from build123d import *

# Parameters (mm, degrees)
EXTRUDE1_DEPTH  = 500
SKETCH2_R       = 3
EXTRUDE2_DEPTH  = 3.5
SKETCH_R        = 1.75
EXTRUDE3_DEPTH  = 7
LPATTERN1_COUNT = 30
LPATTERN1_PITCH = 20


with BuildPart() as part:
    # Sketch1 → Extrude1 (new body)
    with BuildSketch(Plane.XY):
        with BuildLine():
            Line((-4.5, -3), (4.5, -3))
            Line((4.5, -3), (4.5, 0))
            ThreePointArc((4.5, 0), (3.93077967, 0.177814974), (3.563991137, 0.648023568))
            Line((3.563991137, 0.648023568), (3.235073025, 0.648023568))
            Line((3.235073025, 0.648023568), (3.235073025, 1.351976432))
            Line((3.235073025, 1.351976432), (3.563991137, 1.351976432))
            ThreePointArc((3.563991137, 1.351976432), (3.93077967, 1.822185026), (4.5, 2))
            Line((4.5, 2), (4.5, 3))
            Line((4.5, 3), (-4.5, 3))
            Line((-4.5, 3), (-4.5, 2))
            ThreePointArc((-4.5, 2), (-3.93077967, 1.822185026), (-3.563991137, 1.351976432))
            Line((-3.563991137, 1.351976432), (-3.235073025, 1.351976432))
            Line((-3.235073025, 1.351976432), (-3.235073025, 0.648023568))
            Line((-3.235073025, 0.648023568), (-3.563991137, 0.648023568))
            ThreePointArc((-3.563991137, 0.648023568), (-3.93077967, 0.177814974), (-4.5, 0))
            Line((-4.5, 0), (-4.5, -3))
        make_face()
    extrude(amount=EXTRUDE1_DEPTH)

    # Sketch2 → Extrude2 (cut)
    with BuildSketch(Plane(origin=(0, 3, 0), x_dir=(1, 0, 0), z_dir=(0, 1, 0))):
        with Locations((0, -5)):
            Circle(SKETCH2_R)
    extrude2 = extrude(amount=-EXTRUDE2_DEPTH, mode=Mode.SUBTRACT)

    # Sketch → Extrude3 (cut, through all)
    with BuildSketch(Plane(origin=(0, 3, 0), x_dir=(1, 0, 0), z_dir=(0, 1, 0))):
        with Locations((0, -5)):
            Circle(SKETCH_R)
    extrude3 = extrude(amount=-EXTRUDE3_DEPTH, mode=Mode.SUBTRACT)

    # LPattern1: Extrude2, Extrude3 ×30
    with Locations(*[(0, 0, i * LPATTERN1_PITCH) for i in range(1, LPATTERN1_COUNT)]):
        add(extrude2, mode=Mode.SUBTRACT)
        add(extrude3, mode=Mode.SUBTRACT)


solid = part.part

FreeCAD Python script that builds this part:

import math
import FreeCAD as App
import Part
import Sketcher

doc = App.newDocument("Part")
body = doc.addObject("PartDesign::Body", "Body")

# Sketch on XY plane
sketch1 = body.newObject("Sketcher::SketchObject", "Sketch")
sketch1.AttachmentSupport = (doc.getObject("XY_Plane"), [""])
sketch1.MapMode = "FlatFace"
sketch1.addGeometry(Part.LineSegment(App.Vector(-4.5, -3, 0), App.Vector(4.5, -3, 0)), False)
sketch1.addGeometry(Part.LineSegment(App.Vector(4.5, -3, 0), App.Vector(4.5, 0, 0)), False)
sketch1.addGeometry(Part.ArcOfCircle(Part.Circle(App.Vector(4.5, 1, 0), App.Vector(0, 0, 1), 1), math.radians(-159), math.radians(-90)), False)
sketch1.addGeometry(Part.LineSegment(App.Vector(3.56, 0.65, 0), App.Vector(3.24, 0.65, 0)), False)
sketch1.addGeometry(Part.LineSegment(App.Vector(3.24, 0.65, 0), App.Vector(3.24, 1.35, 0)), False)
sketch1.addGeometry(Part.LineSegment(App.Vector(3.24, 1.35, 0), App.Vector(3.56, 1.35, 0)), False)
sketch1.addGeometry(Part.ArcOfCircle(Part.Circle(App.Vector(4.5, 1, 0), App.Vector(0, 0, 1), 1), math.radians(90), math.radians(159)), False)
sketch1.addGeometry(Part.LineSegment(App.Vector(4.5, 2, 0), App.Vector(4.5, 3, 0)), False)
sketch1.addGeometry(Part.LineSegment(App.Vector(4.5, 3, 0), App.Vector(-4.5, 3, 0)), False)
sketch1.addGeometry(Part.LineSegment(App.Vector(-4.5, 3, 0), App.Vector(-4.5, 2, 0)), False)
sketch1.addGeometry(Part.ArcOfCircle(Part.Circle(App.Vector(-4.5, 1, 0), App.Vector(0, 0, 1), 1), math.radians(21), math.radians(90)), False)
sketch1.addGeometry(Part.LineSegment(App.Vector(-3.56, 1.35, 0), App.Vector(-3.24, 1.35, 0)), False)
sketch1.addGeometry(Part.LineSegment(App.Vector(-3.24, 1.35, 0), App.Vector(-3.24, 0.65, 0)), False)
sketch1.addGeometry(Part.LineSegment(App.Vector(-3.24, 0.65, 0), App.Vector(-3.56, 0.65, 0)), False)
sketch1.addGeometry(Part.ArcOfCircle(Part.Circle(App.Vector(-4.5, 1, 0), App.Vector(0, 0, 1), 1), math.radians(-90), math.radians(-21)), False)
sketch1.addGeometry(Part.LineSegment(App.Vector(-4.5, 0, 0), App.Vector(-4.5, -3, 0)), False)
sketch1.addConstraint(Sketcher.Constraint("Coincident", 0, 2, 1, 1))
sketch1.addConstraint(Sketcher.Constraint("Coincident", 1, 2, 2, 2))
sketch1.addConstraint(Sketcher.Constraint("Coincident", 2, 1, 3, 1))
sketch1.addConstraint(Sketcher.Constraint("Coincident", 3, 2, 4, 1))
sketch1.addConstraint(Sketcher.Constraint("Coincident", 4, 2, 5, 1))
sketch1.addConstraint(Sketcher.Constraint("Coincident", 5, 2, 6, 2))
sketch1.addConstraint(Sketcher.Constraint("Coincident", 6, 1, 7, 1))
sketch1.addConstraint(Sketcher.Constraint("Coincident", 7, 2, 8, 1))
sketch1.addConstraint(Sketcher.Constraint("Coincident", 8, 2, 9, 1))
sketch1.addConstraint(Sketcher.Constraint("Coincident", 9, 2, 10, 2))
sketch1.addConstraint(Sketcher.Constraint("Coincident", 10, 1, 11, 1))
sketch1.addConstraint(Sketcher.Constraint("Coincident", 11, 2, 12, 1))
sketch1.addConstraint(Sketcher.Constraint("Coincident", 12, 2, 13, 1))
sketch1.addConstraint(Sketcher.Constraint("Coincident", 13, 2, 14, 2))
sketch1.addConstraint(Sketcher.Constraint("Coincident", 14, 1, 15, 1))
sketch1.addConstraint(Sketcher.Constraint("Coincident", 15, 2, 0, 1))
sketch1.addConstraint(Sketcher.Constraint("Horizontal", 0))
sketch1.addConstraint(Sketcher.Constraint("Vertical", 1))
sketch1.addConstraint(Sketcher.Constraint("Horizontal", 3))
sketch1.addConstraint(Sketcher.Constraint("Vertical", 4))
sketch1.addConstraint(Sketcher.Constraint("Horizontal", 5))
sketch1.addConstraint(Sketcher.Constraint("Vertical", 7))
sketch1.addConstraint(Sketcher.Constraint("Horizontal", 8))
sketch1.addConstraint(Sketcher.Constraint("Vertical", 9))
sketch1.addConstraint(Sketcher.Constraint("Horizontal", 11))
sketch1.addConstraint(Sketcher.Constraint("Vertical", 12))
sketch1.addConstraint(Sketcher.Constraint("Horizontal", 13))
sketch1.addConstraint(Sketcher.Constraint("Vertical", 15))
sketch1.addConstraint(Sketcher.Constraint("Coincident", 6, 3, 2, 3))
sketch1.addConstraint(Sketcher.Constraint("Coincident", 14, 3, 10, 3))
sketch1.addConstraint(Sketcher.Constraint("Equal", 2, 6))
sketch1.addConstraint(Sketcher.Constraint("Equal", 6, 10))
sketch1.addConstraint(Sketcher.Constraint("Equal", 10, 14))
sketch1.addConstraint(Sketcher.Constraint("Symmetric", 0, 2, 8, 2, -1, 1))
sketch1.addConstraint(Sketcher.Constraint("Symmetric", 1, 2, 14, 1, -1, 1))
sketch1.addConstraint(Sketcher.Constraint("Symmetric", 2, 3, 10, 3, -2))
sketch1.addConstraint(Sketcher.Constraint("Symmetric", 4, 2, 11, 2, -2))
sketch1.addConstraint(Sketcher.Constraint("Horizontal", 3, 2, 12, 2))
sketch1.addConstraint(Sketcher.Constraint("Vertical", 6, 3, 0, 2))
sketch1.addConstraint(Sketcher.Constraint("Vertical", 2, 1, 5, 2))
sketch1.addConstraint(Sketcher.Constraint("Vertical", 1, 2, 6, 1))
sketch1.addConstraint(Sketcher.Constraint("Radius", 2, 1.0))
sketch1.addConstraint(Sketcher.Constraint("DistanceX", 0, 1, 0, 2, 9.0))
sketch1.addConstraint(Sketcher.Constraint("DistanceY", 1, 1, 1, 2, 3.0))
sketch1.addConstraint(Sketcher.Constraint("DistanceX", 3, 2, 3, 1, 0.328918))
sketch1.addConstraint(Sketcher.Constraint("DistanceY", 4, 1, 4, 2, 0.703953))
pad1 = body.newObject("PartDesign::Pad", "Pad")
pad1.Profile = sketch1
pad1.Length = 500

# Sketch on XZ plane
sketch2 = body.newObject("Sketcher::SketchObject", "Sketch001")
sketch2.AttachmentSupport = (doc.getObject("XZ_Plane"), [""])
sketch2.MapMode = "FlatFace"
sketch2.AttachmentOffset = App.Placement(App.Vector(0, 0, -3), App.Rotation())
sketch2.addGeometry(Part.Circle(App.Vector(0, 5, 0), App.Vector(0, 0, 1), 3), False)
sketch2.addConstraint(Sketcher.Constraint("PointOnObject", 0, 3, -2))
sketch2.addConstraint(Sketcher.Constraint("Diameter", 0, 6.0))
sketch2.addConstraint(Sketcher.Constraint("DistanceY", -1, 1, 0, 3, 5.0))
pocket1 = body.newObject("PartDesign::Pocket", "Pocket")
pocket1.Profile = sketch2
pocket1.Length = 3.5
pocket1.Reversed = True

# Sketch on XZ plane
sketch3 = body.newObject("Sketcher::SketchObject", "Sketch002")
sketch3.AttachmentSupport = (doc.getObject("XZ_Plane"), [""])
sketch3.MapMode = "FlatFace"
sketch3.AttachmentOffset = App.Placement(App.Vector(0, 0, -3), App.Rotation())
sketch3.addGeometry(Part.Circle(App.Vector(0, 5, 0), App.Vector(0, 0, 1), 1.8), False)
sketch3.addConstraint(Sketcher.Constraint("PointOnObject", 0, 3, -2))
sketch3.addConstraint(Sketcher.Constraint("Diameter", 0, 3.5))
sketch3.addConstraint(Sketcher.Constraint("DistanceY", -1, 1, 0, 3, 5.0))
pocket2 = body.newObject("PartDesign::Pocket", "Pocket001")
pocket2.Profile = sketch3
pocket2.Type = "ThroughAll"
pocket2.Reversed = True
doc.recompute()

linearpattern = body.newObject("PartDesign::LinearPattern", "LinearPattern")
linearpattern.Originals = [pocket1, pocket2]
linearpattern.Direction = (doc.getObject("Z_Axis"), [""])
linearpattern.Mode = "offset"
linearpattern.Offset = 20
linearpattern.Occurrences = 30
body.Tip = linearpattern

doc.recompute()
